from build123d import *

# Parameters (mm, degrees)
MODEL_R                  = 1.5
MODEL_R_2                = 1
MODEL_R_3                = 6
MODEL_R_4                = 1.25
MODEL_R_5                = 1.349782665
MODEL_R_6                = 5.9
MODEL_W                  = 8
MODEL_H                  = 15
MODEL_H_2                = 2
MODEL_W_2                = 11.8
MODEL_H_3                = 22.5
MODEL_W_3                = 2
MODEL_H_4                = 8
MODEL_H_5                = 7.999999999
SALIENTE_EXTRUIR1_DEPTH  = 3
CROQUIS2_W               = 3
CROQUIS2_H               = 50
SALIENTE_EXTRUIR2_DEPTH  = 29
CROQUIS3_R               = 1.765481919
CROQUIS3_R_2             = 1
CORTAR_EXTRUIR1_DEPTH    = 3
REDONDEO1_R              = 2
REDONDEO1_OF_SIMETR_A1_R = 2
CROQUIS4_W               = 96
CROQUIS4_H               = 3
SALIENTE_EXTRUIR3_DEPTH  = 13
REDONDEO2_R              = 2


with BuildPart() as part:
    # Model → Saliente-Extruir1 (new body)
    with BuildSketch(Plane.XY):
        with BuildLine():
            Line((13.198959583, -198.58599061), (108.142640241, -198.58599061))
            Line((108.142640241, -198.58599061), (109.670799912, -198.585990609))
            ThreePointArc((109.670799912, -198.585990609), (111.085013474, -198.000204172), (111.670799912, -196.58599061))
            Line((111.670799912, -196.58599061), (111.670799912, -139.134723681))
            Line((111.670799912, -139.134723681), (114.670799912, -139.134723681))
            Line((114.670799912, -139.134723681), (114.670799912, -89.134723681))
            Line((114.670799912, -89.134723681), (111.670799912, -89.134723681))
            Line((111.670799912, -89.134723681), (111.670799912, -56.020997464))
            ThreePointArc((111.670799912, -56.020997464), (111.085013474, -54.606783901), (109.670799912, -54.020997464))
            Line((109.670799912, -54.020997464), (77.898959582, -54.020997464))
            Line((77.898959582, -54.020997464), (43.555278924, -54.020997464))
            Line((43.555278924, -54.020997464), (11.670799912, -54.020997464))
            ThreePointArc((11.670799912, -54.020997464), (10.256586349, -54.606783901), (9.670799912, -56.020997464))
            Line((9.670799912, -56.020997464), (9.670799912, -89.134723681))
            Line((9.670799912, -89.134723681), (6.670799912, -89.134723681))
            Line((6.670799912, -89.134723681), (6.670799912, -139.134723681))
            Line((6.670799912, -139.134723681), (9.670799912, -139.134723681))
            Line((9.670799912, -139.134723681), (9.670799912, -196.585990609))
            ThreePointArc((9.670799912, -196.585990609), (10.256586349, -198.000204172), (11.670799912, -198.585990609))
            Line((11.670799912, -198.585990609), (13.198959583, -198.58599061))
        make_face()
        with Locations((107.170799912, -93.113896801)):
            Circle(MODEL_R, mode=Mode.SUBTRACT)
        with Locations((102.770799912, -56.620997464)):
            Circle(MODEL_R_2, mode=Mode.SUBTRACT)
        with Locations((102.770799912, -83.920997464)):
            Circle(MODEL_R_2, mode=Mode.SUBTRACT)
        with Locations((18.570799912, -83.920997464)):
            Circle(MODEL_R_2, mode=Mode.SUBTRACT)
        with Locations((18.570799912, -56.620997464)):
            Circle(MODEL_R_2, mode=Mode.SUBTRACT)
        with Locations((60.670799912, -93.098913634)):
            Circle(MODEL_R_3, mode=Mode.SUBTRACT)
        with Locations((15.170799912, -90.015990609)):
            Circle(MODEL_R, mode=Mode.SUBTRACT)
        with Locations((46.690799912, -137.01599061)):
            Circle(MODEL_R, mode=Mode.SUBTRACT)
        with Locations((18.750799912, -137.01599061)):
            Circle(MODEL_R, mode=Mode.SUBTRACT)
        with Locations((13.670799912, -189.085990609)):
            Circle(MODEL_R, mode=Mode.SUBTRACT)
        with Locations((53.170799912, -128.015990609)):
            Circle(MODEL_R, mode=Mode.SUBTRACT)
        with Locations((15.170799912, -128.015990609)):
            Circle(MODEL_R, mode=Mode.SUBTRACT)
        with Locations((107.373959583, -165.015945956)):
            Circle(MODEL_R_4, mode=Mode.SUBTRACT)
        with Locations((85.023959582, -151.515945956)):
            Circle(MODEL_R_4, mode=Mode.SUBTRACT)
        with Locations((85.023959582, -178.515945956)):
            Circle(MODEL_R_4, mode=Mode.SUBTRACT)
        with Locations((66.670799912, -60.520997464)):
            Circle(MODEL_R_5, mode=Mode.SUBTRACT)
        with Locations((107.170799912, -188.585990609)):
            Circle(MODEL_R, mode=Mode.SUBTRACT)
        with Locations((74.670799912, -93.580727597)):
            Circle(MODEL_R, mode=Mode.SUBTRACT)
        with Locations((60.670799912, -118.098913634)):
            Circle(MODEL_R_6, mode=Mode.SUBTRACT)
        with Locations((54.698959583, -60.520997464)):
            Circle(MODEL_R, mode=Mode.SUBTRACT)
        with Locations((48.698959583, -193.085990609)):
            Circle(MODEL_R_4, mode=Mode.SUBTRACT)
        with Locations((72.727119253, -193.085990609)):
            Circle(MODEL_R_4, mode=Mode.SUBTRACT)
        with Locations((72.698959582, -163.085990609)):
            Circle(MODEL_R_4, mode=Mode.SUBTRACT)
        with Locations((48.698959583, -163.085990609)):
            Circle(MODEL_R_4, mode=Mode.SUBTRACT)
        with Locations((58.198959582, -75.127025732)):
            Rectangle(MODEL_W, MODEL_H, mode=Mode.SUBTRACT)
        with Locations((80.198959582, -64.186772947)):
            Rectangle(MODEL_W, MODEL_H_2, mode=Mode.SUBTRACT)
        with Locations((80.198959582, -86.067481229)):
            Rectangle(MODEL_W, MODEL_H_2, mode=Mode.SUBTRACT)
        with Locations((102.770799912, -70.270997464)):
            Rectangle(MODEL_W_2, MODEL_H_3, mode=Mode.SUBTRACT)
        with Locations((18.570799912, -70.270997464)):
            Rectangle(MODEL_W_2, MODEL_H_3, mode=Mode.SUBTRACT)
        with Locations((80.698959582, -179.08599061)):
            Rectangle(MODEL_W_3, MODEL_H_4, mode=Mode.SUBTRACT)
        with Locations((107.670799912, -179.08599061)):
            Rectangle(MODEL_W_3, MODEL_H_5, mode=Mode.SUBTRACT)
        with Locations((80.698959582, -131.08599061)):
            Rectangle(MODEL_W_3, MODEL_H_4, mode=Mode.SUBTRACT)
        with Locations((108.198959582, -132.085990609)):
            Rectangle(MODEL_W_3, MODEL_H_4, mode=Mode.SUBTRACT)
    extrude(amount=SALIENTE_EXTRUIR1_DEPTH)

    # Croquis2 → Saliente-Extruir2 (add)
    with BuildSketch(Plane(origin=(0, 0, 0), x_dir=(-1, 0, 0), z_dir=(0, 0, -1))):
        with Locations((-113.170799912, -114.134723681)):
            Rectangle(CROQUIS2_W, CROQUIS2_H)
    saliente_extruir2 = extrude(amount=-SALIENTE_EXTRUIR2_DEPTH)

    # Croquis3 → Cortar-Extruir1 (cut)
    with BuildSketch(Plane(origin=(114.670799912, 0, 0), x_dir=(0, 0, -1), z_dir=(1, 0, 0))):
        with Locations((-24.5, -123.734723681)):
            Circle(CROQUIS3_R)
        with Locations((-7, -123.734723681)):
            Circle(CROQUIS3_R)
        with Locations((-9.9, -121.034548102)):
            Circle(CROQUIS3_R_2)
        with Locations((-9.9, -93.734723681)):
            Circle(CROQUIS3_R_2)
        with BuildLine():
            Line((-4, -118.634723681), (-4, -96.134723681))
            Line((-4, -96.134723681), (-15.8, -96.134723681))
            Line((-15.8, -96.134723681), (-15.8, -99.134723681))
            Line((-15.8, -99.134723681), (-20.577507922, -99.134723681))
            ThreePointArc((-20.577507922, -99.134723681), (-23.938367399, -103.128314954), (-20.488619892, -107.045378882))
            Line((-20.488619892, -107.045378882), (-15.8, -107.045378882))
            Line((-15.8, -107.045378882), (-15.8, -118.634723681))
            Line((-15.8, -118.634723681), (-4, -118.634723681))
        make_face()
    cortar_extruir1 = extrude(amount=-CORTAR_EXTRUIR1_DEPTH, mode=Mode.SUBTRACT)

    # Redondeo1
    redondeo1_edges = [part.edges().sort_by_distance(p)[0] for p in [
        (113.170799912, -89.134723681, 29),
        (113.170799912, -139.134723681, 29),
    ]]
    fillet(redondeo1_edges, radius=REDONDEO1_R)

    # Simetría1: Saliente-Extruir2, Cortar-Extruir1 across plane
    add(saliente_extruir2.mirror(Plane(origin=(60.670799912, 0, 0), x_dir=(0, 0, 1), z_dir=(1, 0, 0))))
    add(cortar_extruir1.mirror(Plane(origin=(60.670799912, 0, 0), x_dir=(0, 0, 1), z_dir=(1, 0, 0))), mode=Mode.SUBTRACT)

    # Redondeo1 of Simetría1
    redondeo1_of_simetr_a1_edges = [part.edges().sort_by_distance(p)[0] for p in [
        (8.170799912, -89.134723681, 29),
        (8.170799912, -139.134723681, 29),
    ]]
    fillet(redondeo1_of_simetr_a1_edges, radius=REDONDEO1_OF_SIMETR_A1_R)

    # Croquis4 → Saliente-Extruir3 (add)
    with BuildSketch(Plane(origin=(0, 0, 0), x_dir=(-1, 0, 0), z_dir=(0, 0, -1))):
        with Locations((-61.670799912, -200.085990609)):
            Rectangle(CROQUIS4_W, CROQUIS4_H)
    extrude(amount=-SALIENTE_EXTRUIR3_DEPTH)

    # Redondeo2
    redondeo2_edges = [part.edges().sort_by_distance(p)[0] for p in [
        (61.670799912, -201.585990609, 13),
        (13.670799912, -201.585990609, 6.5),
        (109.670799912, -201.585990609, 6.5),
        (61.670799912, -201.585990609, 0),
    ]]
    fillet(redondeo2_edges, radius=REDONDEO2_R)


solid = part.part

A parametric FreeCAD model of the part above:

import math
import FreeCAD as App
import Part
import Sketcher
from FreeCAD import Vector
Q = App.Units.Quantity


def edges_at(feature, points):
    """Names of the edges that pass closest to the given points."""
    edges = feature.Shape.Edges
    near = lambda p: min(range(len(edges)), key=lambda i: edges[i].distToShape(Part.Vertex(*p))[0])
    return sorted({f"Edge{near(p) + 1}" for p in points})

doc = App.newDocument("Part")
body = doc.addObject("PartDesign::Body", "Body")

sketch1 = body.newObject("Sketcher::SketchObject", "Sketch")
sketch1.AttachmentSupport = (doc.getObject("XY_Plane"), [""])
sketch1.MapMode = "FlatFace"
sketch1.addGeometry(Part.LineSegment(Vector(13.2, -198.6, 0), Vector(108.1, -198.6, 0)), False)
sketch1.addGeometry(Part.LineSegment(Vector(108.1, -198.6, 0), Vector(109.7, -198.6, 0)), False)
sketch1.addGeometry(Part.ArcOfCircle(Part.Circle(Vector(109.7, -196.6, 0), Vector(0, 0, 1), 2), math.radians(-90), math.radians(0)), False)
sketch1.addGeometry(Part.LineSegment(Vector(111.7, -196.6, 0), Vector(111.7, -139.1, 0)), False)
sketch1.addGeometry(Part.LineSegment(Vector(111.7, -139.1, 0), Vector(114.7, -139.1, 0)), False)
sketch1.addGeometry(Part.LineSegment(Vector(114.7, -139.1, 0), Vector(114.7, -89.1, 0)), False)
sketch1.addGeometry(Part.LineSegment(Vector(114.7, -89.1, 0), Vector(111.7, -89.1, 0)), False)
sketch1.addGeometry(Part.LineSegment(Vector(111.7, -89.1, 0), Vector(111.7, -56, 0)), False)
sketch1.addGeometry(Part.ArcOfCircle(Part.Circle(Vector(109.7, -56, 0), Vector(0, 0, 1), 2), math.radians(0), math.radians(90)), False)
sketch1.addGeometry(Part.LineSegment(Vector(109.7, -54, 0), Vector(11.7, -54, 0)), False)
sketch1.addGeometry(Part.ArcOfCircle(Part.Circle(Vector(11.7, -56, 0), Vector(0, 0, 1), 2), math.radians(90), math.radians(180)), False)
sketch1.addGeometry(Part.LineSegment(Vector(9.7, -56, 0), Vector(9.7, -89.1, 0)), False)
sketch1.addGeometry(Part.LineSegment(Vector(9.7, -89.1, 0), Vector(6.7, -89.1, 0)), False)
sketch1.addGeometry(Part.LineSegment(Vector(6.7, -89.1, 0), Vector(6.7, -139.1, 0)), False)
sketch1.addGeometry(Part.LineSegment(Vector(6.7, -139.1, 0), Vector(9.7, -139.1, 0)), False)
sketch1.addGeometry(Part.LineSegment(Vector(9.7, -139.1, 0), Vector(9.7, -196.6, 0)), False)
sketch1.addGeometry(Part.ArcOfCircle(Part.Circle(Vector(11.7, -196.6, 0), Vector(0, 0, 1), 2), math.radians(180), math.radians(270)), False)
sketch1.addGeometry(Part.LineSegment(Vector(11.7, -198.6, 0), Vector(13.2, -198.6, 0)), False)
sketch1.addGeometry(Part.Circle(Vector(13.7, -189.1, 0), Vector(0, 0, 1), 1.5), False)
sketch1.addGeometry(Part.Circle(Vector(48.7, -193.1, 0), Vector(0, 0, 1), 1.2), False)
sketch1.addGeometry(Part.Circle(Vector(48.7, -163.1, 0), Vector(0, 0, 1), 1.2), False)
sketch1.addGeometry(Part.Circle(Vector(18.8, -137, 0), Vector(0, 0, 1), 1.5), False)
sketch1.addGeometry(Part.Circle(Vector(15.2, -128, 0), Vector(0, 0, 1), 1.5), False)
sketch1.addGeometry(Part.Circle(Vector(46.7, -137, 0), Vector(0, 0, 1), 1.5), False)
sketch1.addGeometry(Part.Circle(Vector(53.2, -128, 0), Vector(0, 0, 1), 1.5), False)
sketch1.addGeometry(Part.Circle(Vector(72.7, -193.1, 0), Vector(0, 0, 1), 1.2), False)
sketch1.addGeometry(Part.LineSegment(Vector(81.7, -183.1, 0), Vector(79.7, -183.1, 0)), False)
sketch1.addGeometry(Part.LineSegment(Vector(79.7, -183.1, 0), Vector(79.7, -175.1, 0)), False)
sketch1.addGeometry(Part.LineSegment(Vector(79.7, -175.1, 0), Vector(81.7, -175.1, 0)), False)
sketch1.addGeometry(Part.LineSegment(Vector(81.7, -175.1, 0), Vector(81.7, -183.1, 0)), False)
sketch1.addGeometry(Part.Circle(Vector(72.7, -163.1, 0), Vector(0, 0, 1), 1.2), False)
sketch1.addGeometry(Part.Circle(Vector(85, -178.5, 0), Vector(0, 0, 1), 1.2), False)
sketch1.addGeometry(Part.Circle(Vector(107.2, -188.6, 0), Vector(0, 0, 1), 1.5), False)
sketch1.addGeometry(Part.LineSegment(Vector(108.7, -183.1, 0), Vector(106.7, -183.1, 0)), False)
sketch1.addGeometry(Part.LineSegment(Vector(106.7, -183.1, 0), Vector(106.7, -175.1, 0)), False)
sketch1.addGeometry(Part.LineSegment(Vector(106.7, -175.1, 0), Vector(108.7, -175.1, 0)), False)
sketch1.addGeometry(Part.LineSegment(Vector(108.7, -175.1, 0), Vector(108.7, -183.1, 0)), False)
sketch1.addGeometry(Part.Circle(Vector(107.4, -165, 0), Vector(0, 0, 1), 1.2), False)
sketch1.addGeometry(Part.LineSegment(Vector(81.7, -135.1, 0), Vector(79.7, -135.1, 0)), False)
sketch1.addGeometry(Part.LineSegment(Vector(79.7, -135.1, 0), Vector(79.7, -127.1, 0)), False)
sketch1.addGeometry(Part.LineSegment(Vector(79.7, -127.1, 0), Vector(81.7, -127.1, 0)), False)
sketch1.addGeometry(Part.LineSegment(Vector(81.7, -127.1, 0), Vector(81.7, -135.1, 0)), False)
sketch1.addGeometry(Part.Circle(Vector(85, -151.5, 0), Vector(0, 0, 1), 1.2), False)
sketch1.addGeometry(Part.LineSegment(Vector(109.2, -136.1, 0), Vector(107.2, -136.1, 0)), False)
sketch1.addGeometry(Part.LineSegment(Vector(107.2, -136.1, 0), Vector(107.2, -128.1, 0)), False)
sketch1.addGeometry(Part.LineSegment(Vector(107.2, -128.1, 0), Vector(109.2, -128.1, 0)), False)
sketch1.addGeometry(Part.LineSegment(Vector(109.2, -128.1, 0), Vector(109.2, -136.1, 0)), False)
sketch1.addGeometry(Part.Circle(Vector(60.7, -118.1, 0), Vector(0, 0, 1), 5.9), False)
sketch1.addGeometry(Part.Circle(Vector(60.7, -93.1, 0), Vector(0, 0, 1), 6), False)
sketch1.addGeometry(Part.Circle(Vector(15.2, -90, 0), Vector(0, 0, 1), 1.5), False)
sketch1.addGeometry(Part.Circle(Vector(18.6, -83.9, 0), Vector(0, 0, 1), 1), False)
sketch1.addGeometry(Part.LineSegment(Vector(24.5, -81.5, 0), Vector(12.7, -81.5, 0)), False)
sketch1.addGeometry(Part.LineSegment(Vector(12.7, -81.5, 0), Vector(12.7, -59, 0)), False)
sketch1.addGeometry(Part.LineSegment(Vector(12.7, -59, 0), Vector(24.5, -59, 0)), False)
sketch1.addGeometry(Part.LineSegment(Vector(24.5, -59, 0), Vector(24.5, -81.5, 0)), False)
sketch1.addGeometry(Part.Circle(Vector(18.6, -56.6, 0), Vector(0, 0, 1), 1), False)
sketch1.addGeometry(Part.LineSegment(Vector(62.2, -82.6, 0), Vector(54.2, -82.6, 0)), False)
sketch1.addGeometry(Part.LineSegment(Vector(54.2, -82.6, 0), Vector(54.2, -67.6, 0)), False)
sketch1.addGeometry(Part.LineSegment(Vector(54.2, -67.6, 0), Vector(62.2, -67.6, 0)), False)
sketch1.addGeometry(Part.LineSegment(Vector(62.2, -67.6, 0), Vector(62.2, -82.6, 0)), False)
sketch1.addGeometry(Part.Circle(Vector(54.7, -60.5, 0), Vector(0, 0, 1), 1.5), False)
sketch1.addGeometry(Part.Circle(Vector(74.7, -93.6, 0), Vector(0, 0, 1), 1.5), False)
sketch1.addGeometry(Part.Circle(Vector(107.2, -93.1, 0), Vector(0, 0, 1), 1.5), False)
sketch1.addGeometry(Part.LineSegment(Vector(84.2, -87.1, 0), Vector(76.2, -87.1, 0)), False)
sketch1.addGeometry(Part.LineSegment(Vector(76.2, -87.1, 0), Vector(76.2, -85.1, 0)), False)
sketch1.addGeometry(Part.LineSegment(Vector(76.2, -85.1, 0), Vector(84.2, -85.1, 0)), False)
sketch1.addGeometry(Part.LineSegment(Vector(84.2, -85.1, 0), Vector(84.2, -87.1, 0)), False)
sketch1.addGeometry(Part.Circle(Vector(66.7, -60.5, 0), Vector(0, 0, 1), 1.3), False)
sketch1.addGeometry(Part.LineSegment(Vector(84.2, -65.2, 0), Vector(76.2, -65.2, 0)), False)
sketch1.addGeometry(Part.LineSegment(Vector(76.2, -65.2, 0), Vector(76.2, -63.2, 0)), False)
sketch1.addGeometry(Part.LineSegment(Vector(76.2, -63.2, 0), Vector(84.2, -63.2, 0)), False)
sketch1.addGeometry(Part.LineSegment(Vector(84.2, -63.2, 0), Vector(84.2, -65.2, 0)), False)
sketch1.addGeometry(Part.Circle(Vector(102.8, -83.9, 0), Vector(0, 0, 1), 1), False)
sketch1.addGeometry(Part.LineSegment(Vector(108.7, -81.5, 0), Vector(96.9, -81.5, 0)), False)
sketch1.addGeometry(Part.LineSegment(Vector(96.9, -81.5, 0), Vector(96.9, -59, 0)), False)
sketch1.addGeometry(Part.LineSegment(Vector(96.9, -59, 0), Vector(108.7, -59, 0)), False)
sketch1.addGeometry(Part.LineSegment(Vector(108.7, -59, 0), Vector(108.7, -81.5, 0)), False)
sketch1.addGeometry(Part.Circle(Vector(102.8, -56.6, 0), Vector(0, 0, 1), 1), False)
sketch1.addConstraint(Sketcher.Constraint("Coincident", 0, 2, 1, 1))
sketch1.addConstraint(Sketcher.Constraint("Tangent", 1, 2, 2, 1))
sketch1.addConstraint(Sketcher.Constraint("Tangent", 2, 2, 3, 1))
sketch1.addConstraint(Sketcher.Constraint("Coincident", 3, 2, 4, 1))
sketch1.addConstraint(Sketcher.Constraint("Coincident", 4, 2, 5, 1))
sketch1.addConstraint(Sketcher.Constraint("Coincident", 5, 2, 6, 1))
sketch1.addConstraint(Sketcher.Constraint("Coincident", 6, 2, 7, 1))
sketch1.addConstraint(Sketcher.Constraint("Tangent", 7, 2, 8, 1))
sketch1.addConstraint(Sketcher.Constraint("Tangent", 8, 2, 9, 1))
sketch1.addConstraint(Sketcher.Constraint("Tangent", 9, 2, 10, 1))
sketch1.addConstraint(Sketcher.Constraint("Tangent", 10, 2, 11, 1))
sketch1.addConstraint(Sketcher.Constraint("Coincident", 11, 2, 12, 1))
sketch1.addConstraint(Sketcher.Constraint("Coincident", 12, 2, 13, 1))
sketch1.addConstraint(Sketcher.Constraint("Coincident", 13, 2, 14, 1))
sketch1.addConstraint(Sketcher.Constraint("Coincident", 14, 2, 15, 1))
sketch1.addConstraint(Sketcher.Constraint("Tangent", 15, 2, 16, 1))
sketch1.addConstraint(Sketcher.Constraint("Tangent", 16, 2, 17, 1))
sketch1.addConstraint(Sketcher.Constraint("Coincident", 17, 2, 0, 1))
sketch1.addConstraint(Sketcher.Constraint("Coincident", 26, 2, 27, 1))
sketch1.addConstraint(Sketcher.Constraint("Coincident", 27, 2, 28, 1))
sketch1.addConstraint(Sketcher.Constraint("Coincident", 28, 2, 29, 1))
sketch1.addConstraint(Sketcher.Constraint("Coincident", 29, 2, 26, 1))
sketch1.addConstraint(Sketcher.Constraint("Coincident", 33, 2, 34, 1))
sketch1.addConstraint(Sketcher.Constraint("Coincident", 34, 2, 35, 1))
sketch1.addConstraint(Sketcher.Constraint("Coincident", 35, 2, 36, 1))
sketch1.addConstraint(Sketcher.Constraint("Coincident", 36, 2, 33, 1))
sketch1.addConstraint(Sketcher.Constraint("Coincident", 38, 2, 39, 1))
sketch1.addConstraint(Sketcher.Constraint("Coincident", 39, 2, 40, 1))
sketch1.addConstraint(Sketcher.Constraint("Coincident", 40, 2, 41, 1))
sketch1.addConstraint(Sketcher.Constraint("Coincident", 41, 2, 38, 1))
sketch1.addConstraint(Sketcher.Constraint("Coincident", 43, 2, 44, 1))
sketch1.addConstraint(Sketcher.Constraint("Coincident", 44, 2, 45, 1))
sketch1.addConstraint(Sketcher.Constraint("Coincident", 45, 2, 46, 1))
sketch1.addConstraint(Sketcher.Constraint("Coincident", 46, 2, 43, 1))
sketch1.addConstraint(Sketcher.Constraint("Coincident", 51, 2, 52, 1))
sketch1.addConstraint(Sketcher.Constraint("Coincident", 52, 2, 53, 1))
sketch1.addConstraint(Sketcher.Constraint("Coincident", 53, 2, 54, 1))
sketch1.addConstraint(Sketcher.Constraint("Coincident", 54, 2, 51, 1))
sketch1.addConstraint(Sketcher.Constraint("Coincident", 56, 2, 57, 1))
sketch1.addConstraint(Sketcher.Constraint("Coincident", 57, 2, 58, 1))
sketch1.addConstraint(Sketcher.Constraint("Coincident", 58, 2, 59, 1))
sketch1.addConstraint(Sketcher.Constraint("Coincident", 59, 2, 56, 1))
sketch1.addConstraint(Sketcher.Constraint("Coincident", 63, 2, 64, 1))
sketch1.addConstraint(Sketcher.Constraint("Coincident", 64, 2, 65, 1))
sketch1.addConstraint(Sketcher.Constraint("Coincident", 65, 2, 66, 1))
sketch1.addConstraint(Sketcher.Constraint("Coincident", 66, 2, 63, 1))
sketch1.addConstraint(Sketcher.Constraint("Coincident", 68, 2, 69, 1))
sketch1.addConstraint(Sketcher.Constraint("Coincident", 69, 2, 70, 1))
sketch1.addConstraint(Sketcher.Constraint("Coincident", 70, 2, 71, 1))
sketch1.addConstraint(Sketcher.Constraint("Coincident", 71, 2, 68, 1))
sketch1.addConstraint(Sketcher.Constraint("Coincident", 73, 2, 74, 1))
sketch1.addConstraint(Sketcher.Constraint("Coincident", 74, 2, 75, 1))
sketch1.addConstraint(Sketcher.Constraint("Coincident", 75, 2, 76, 1))
sketch1.addConstraint(Sketcher.Constraint("Coincident", 76, 2, 73, 1))
sketch1.addConstraint(Sketcher.Constraint("Horizontal", 0))
sketch1.addConstraint(Sketcher.Constraint("Horizontal", 1))
sketch1.addConstraint(Sketcher.Constraint("Vertical", 3))
sketch1.addConstraint(Sketcher.Constraint("Horizontal", 4))
sketch1.addConstraint(Sketcher.Constraint("Vertical", 5))
sketch1.addConstraint(Sketcher.Constraint("Horizontal", 6))
sketch1.addConstraint(Sketcher.Constraint("Vertical", 7))
sketch1.addConstraint(Sketcher.Constraint("Horizontal", 9))
sketch1.addConstraint(Sketcher.Constraint("Vertical", 11))
sketch1.addConstraint(Sketcher.Constraint("Horizontal", 12))
sketch1.addConstraint(Sketcher.Constraint("Vertical", 13))
sketch1.addConstraint(Sketcher.Constraint("Horizontal", 14))
sketch1.addConstraint(Sketcher.Constraint("Vertical", 15))
sketch1.addConstraint(Sketcher.Constraint("Horizontal", 17))
sketch1.addConstraint(Sketcher.Constraint("Horizontal", 26))
sketch1.addConstraint(Sketcher.Constraint("Vertical", 27))
sketch1.addConstraint(Sketcher.Constraint("Horizontal", 28))
sketch1.addConstraint(Sketcher.Constraint("Vertical", 29))
sketch1.addConstraint(Sketcher.Constraint("Horizontal", 33))
sketch1.addConstraint(Sketcher.Constraint("Vertical", 34))
sketch1.addConstraint(Sketcher.Constraint("Horizontal", 35))
sketch1.addConstraint(Sketcher.Constraint("Vertical", 36))
sketch1.addConstraint(Sketcher.Constraint("Horizontal", 38))
sketch1.addConstraint(Sketcher.Constraint("Vertical", 39))
sketch1.addConstraint(Sketcher.Constraint("Horizontal", 40))
sketch1.addConstraint(Sketcher.Constraint("Vertical", 41))
sketch1.addConstraint(Sketcher.Constraint("Horizontal", 43))
sketch1.addConstraint(Sketcher.Constraint("Vertical", 44))
sketch1.addConstraint(Sketcher.Constraint("Horizontal", 45))
sketch1.addConstraint(Sketcher.Constraint("Vertical", 46))
sketch1.addConstraint(Sketcher.Constraint("Horizontal", 51))
sketch1.addConstraint(Sketcher.Constraint("Vertical", 52))
sketch1.addConstraint(Sketcher.Constraint("Horizontal", 53))
sketch1.addConstraint(Sketcher.Constraint("Vertical", 54))
sketch1.addConstraint(Sketcher.Constraint("Horizontal", 56))
sketch1.addConstraint(Sketcher.Constraint("Vertical", 57))
sketch1.addConstraint(Sketcher.Constraint("Horizontal", 58))
sketch1.addConstraint(Sketcher.Constraint("Vertical", 59))
sketch1.addConstraint(Sketcher.Constraint("Horizontal", 63))
sketch1.addConstraint(Sketcher.Constraint("Vertical", 64))
sketch1.addConstraint(Sketcher.Constraint("Horizontal", 65))
sketch1.addConstraint(Sketcher.Constraint("Vertical", 66))
sketch1.addConstraint(Sketcher.Constraint("Horizontal", 68))
sketch1.addConstraint(Sketcher.Constraint("Vertical", 69))
sketch1.addConstraint(Sketcher.Constraint("Horizontal", 70))
sketch1.addConstraint(Sketcher.Constraint("Vertical", 71))
sketch1.addConstraint(Sketcher.Constraint("Horizontal", 73))
sketch1.addConstraint(Sketcher.Constraint("Vertical", 74))
sketch1.addConstraint(Sketcher.Constraint("Horizontal", 75))
sketch1.addConstraint(Sketcher.Constraint("Vertical", 76))
sketch1.addConstraint(Sketcher.Constraint("Equal", 2, 8))
sketch1.addConstraint(Sketcher.Constraint("Equal", 8, 10))
sketch1.addConstraint(Sketcher.Constraint("Equal", 10, 16))
sketch1.addConstraint(Sketcher.Constraint("Equal", 19, 20))
sketch1.addConstraint(Sketcher.Constraint("Equal", 18, 21))
sketch1.addConstraint(Sketcher.Constraint("Equal", 21, 22))
sketch1.addConstraint(Sketcher.Constraint("Equal", 22, 23))
sketch1.addConstraint(Sketcher.Constraint("Equal", 23, 24))
sketch1.addConstraint(Sketcher.Constraint("Equal", 20, 25))
sketch1.addConstraint(Sketcher.Constraint("Equal", 25, 30))
sketch1.addConstraint(Sketcher.Constraint("Equal", 30, 31))
sketch1.addConstraint(Sketcher.Constraint("Equal", 24, 32))
sketch1.addConstraint(Sketcher.Constraint("Equal", 31, 37))
sketch1.addConstraint(Sketcher.Constraint("Equal", 37, 42))
sketch1.addConstraint(Sketcher.Constraint("Equal", 32, 49))
sketch1.addConstraint(Sketcher.Constraint("Equal", 50, 55))
sketch1.addConstraint(Sketcher.Constraint("Equal", 49, 60))
sketch1.addConstraint(Sketcher.Constraint("Equal", 60, 61))
sketch1.addConstraint(Sketcher.Constraint("Equal", 61, 62))
sketch1.addConstraint(Sketcher.Constraint("Equal", 55, 72))
sketch1.addConstraint(Sketcher.Constraint("Equal", 72, 77))
sketch1.addConstraint(Sketcher.Constraint("Horizontal", 21, 3, 23, 3))
sketch1.addConstraint(Sketcher.Constraint("Horizontal", 22, 3, 24, 3))
sketch1.addConstraint(Sketcher.Constraint("Horizontal", 19, 3, 25, 3))
sketch1.addConstraint(Sketcher.Constraint("Horizontal", 20, 3, 30, 3))
sketch1.addConstraint(Sketcher.Constraint("Horizontal", 60, 3, 67, 3))
sketch1.addConstraint(Sketcher.Constraint("Horizontal", 50, 3, 72, 3))
sketch1.addConstraint(Sketcher.Constraint("Horizontal", 55, 3, 77, 3))
sketch1.addConstraint(Sketcher.Constraint("Horizontal", 6, 2, 11, 2))
sketch1.addConstraint(Sketcher.Constraint("Horizontal", 4, 2, 13, 2))
sketch1.addConstraint(Sketcher.Constraint("Horizontal", 29, 2, 33, 2))
sketch1.addConstraint(Sketcher.Constraint("Horizontal", 28, 2, 34, 2))
sketch1.addConstraint(Sketcher.Constraint("Horizontal", 54, 2, 73, 2))
sketch1.addConstraint(Sketcher.Constraint("Horizontal", 53, 2, 74, 2))
sketch1.addConstraint(Sketcher.Constraint("Vertical", 2, 3, 8, 3))
sketch1.addConstraint(Sketcher.Constraint("Vertical", 10, 3, 16, 3))
sketch1.addConstraint(Sketcher.Constraint("Vertical", 19, 3, 20, 3))
sketch1.addConstraint(Sketcher.Constraint("Vertical", 31, 3, 42, 3))
sketch1.addConstraint(Sketcher.Constraint("Vertical", 47, 3, 48, 3))
sketch1.addConstraint(Sketcher.Constraint("Vertical", 22, 3, 49, 3))
sketch1.addConstraint(Sketcher.Constraint("Vertical", 50, 3, 55, 3))
sketch1.addConstraint(Sketcher.Constraint("Vertical", 32, 3, 62, 3))
sketch1.addConstraint(Sketcher.Constraint("Vertical", 72, 3, 77, 3))
sketch1.addConstraint(Sketcher.Constraint("Vertical", 27, 2, 38, 2))
sketch1.addConstraint(Sketcher.Constraint("Vertical", 29, 2, 40, 2))
sketch1.addConstraint(Sketcher.Constraint("Vertical", 64, 2, 68, 2))
sketch1.addConstraint(Sketcher.Constraint("Vertical", 66, 2, 70, 2))
sketch1.addConstraint(Sketcher.Constraint("Vertical", 36, 2, 75, 2))
sketch1.addConstraint(Sketcher.Constraint("Equal", 6, 12))
sketch1.addConstraint(Sketcher.Constraint("Equal", 1, 17))
sketch1.addConstraint(Sketcher.Constraint("Equal", 28, 33))
sketch1.addConstraint(Sketcher.Constraint("Equal", 40, 43))
sketch1.addConstraint(Sketcher.Constraint("Equal", 58, 63))
sketch1.addConstraint(Sketcher.Constraint("Equal", 53, 73))
sketch1.addConstraint(Sketcher.Constraint("Equal", 70, 27))
sketch1.addConstraint(Sketcher.Constraint("Equal", 36, 39))
sketch1.addConstraint(Sketcher.Constraint("Equal", 41, 44))
sketch1.addConstraint(Sketcher.Constraint("Equal", 45, 64))
sketch1.addConstraint(Sketcher.Constraint("Equal", 66, 69))
sketch1.addConstraint(Sketcher.Constraint("Diameter", 18, Q("3 mm")))
sketch1.addConstraint(Sketcher.Constraint("Diameter", 48, Q("12 mm")))
sketch1.addConstraint(Sketcher.Constraint("Diameter", 50, Q("2 mm")))
sketch1.addConstraint(Sketcher.Constraint("Radius", 2, Q("2 mm")))
sketch1.addConstraint(Sketcher.Constraint("Diameter", 19, Q("2.5 mm")))
sketch1.addConstraint(Sketcher.Constraint("Diameter", 47, Q("11.8 mm")))
sketch1.addConstraint(Sketcher.Constraint("DistanceX", 4, 1, 4, 2, Q("3 mm")))
sketch1.addConstraint(Sketcher.Constraint("DistanceX", 9, 2, 9, 1, Q("98 mm")))
sketch1.addConstraint(Sketcher.Constraint("DistanceX", 26, 2, 26, 1, Q("2 mm")))
sketch1.addConstraint(Sketcher.Constraint("DistanceX", 56, 2, 56, 1, Q("8 mm")))
sketch1.addConstraint(Sketcher.Constraint("DistanceY", 5, 1, 5, 2, Q("50 mm")))
sketch1.addConstraint(Sketcher.Constraint("DistanceY", 57, 1, 57, 2, Q("15 mm")))
sketch1.addConstraint(Sketcher.Constraint("DistanceX", 51, 2, 51, 1, Q("11.8 mm")))
sketch1.addConstraint(Sketcher.Constraint("DistanceY", 52, 1, 52, 2, Q("22.5 mm")))
sketch1.addConstraint(Sketcher.Constraint("Diameter", 67, Q("2.699565 mm")))
sketch1.addConstraint(Sketcher.Constraint("DistanceX", 0, 1, 0, 2, Q("94.943681 mm")))
sketch1.addConstraint(Sketcher.Constraint("DistanceX", -1, 1, 2, 3, Q("109.6708 mm")))
sketch1.addConstraint(Sketcher.Constraint("DistanceX", -1, 1, 18, 3, Q("13.6708 mm")))
sketch1.addConstraint(Sketcher.Constraint("DistanceX", -1, 1, 21, 3, Q("18.7508 mm")))
sketch1.addConstraint(Sketcher.Constraint("DistanceX", -1, 1, 22, 3, Q("15.1708 mm")))
sketch1.addConstraint(Sketcher.Constraint("DistanceX", -1, 1, 23, 3, Q("46.6908 mm")))
sketch1.addConstraint(Sketcher.Constraint("DistanceX", -1, 1, 24, 3, Q("53.1708 mm")))
sketch1.addConstraint(Sketcher.Constraint("DistanceX", -1, 1, 32, 3, Q("107.1708 mm")))
sketch1.addConstraint(Sketcher.Constraint("DistanceX", -1, 1, 47, 3, Q("60.6708 mm")))
sketch1.addConstraint(Sketcher.Constraint("DistanceX", -1, 1, 50, 3, Q("18.5708 mm")))
sketch1.addConstraint(Sketcher.Constraint("DistanceX", -1, 1, 61, 3, Q("74.6708 mm")))
sketch1.addConstraint(Sketcher.Constraint("DistanceX", -1, 1, 67, 3, Q("66.6708 mm")))
sketch1.addConstraint(Sketcher.Constraint("DistanceX", -1, 1, 72, 3, Q("102.7708 mm")))
sketch1.addConstraint(Sketcher.Constraint("DistanceX", -1, 1, 33, 2, Q("106.6708 mm")))
sketch1.addConstraint(Sketcher.Constraint("DistanceX", -1, 1, 51, 2, Q("12.6708 mm")))
sketch1.addConstraint(Sketcher.Constraint("DistanceY", 3, 1, 3, 2, Q("57.451267 mm")))
sketch1.addConstraint(Sketcher.Constraint("DistanceY", 7, 1, 7, 2, Q("33.113726 mm")))
sketch1.addConstraint(Sketcher.Constraint("DistanceY", 2, 3, -1, 1, Q("196.585991 mm")))
sketch1.addConstraint(Sketcher.Constraint("DistanceY", 18, 3, -1, 1, Q("189.085991 mm")))
sketch1.addConstraint(Sketcher.Constraint("DistanceX", -1, 1, 19, 3, Q("48.69896 mm")))
sketch1.addConstraint(Sketcher.Constraint("DistanceY", 19, 3, -1, 1, Q("193.085991 mm")))
sketch1.addConstraint(Sketcher.Constraint("DistanceY", 20, 3, -1, 1, Q("163.085991 mm")))
sketch1.addConstraint(Sketcher.Constraint("DistanceY", 21, 3, -1, 1, Q("137.015991 mm")))
sketch1.addConstraint(Sketcher.Constraint("DistanceY", 22, 3, -1, 1, Q("128.015991 mm")))
sketch1.addConstraint(Sketcher.Constraint("DistanceX", -1, 1, 25, 3, Q("72.727119 mm")))
sketch1.addConstraint(Sketcher.Constraint("DistanceX", -1, 1, 30, 3, Q("72.69896 mm")))
sketch1.addConstraint(Sketcher.Constraint("DistanceX", -1, 1, 31, 3, Q("85.02396 mm")))
sketch1.addConstraint(Sketcher.Constraint("DistanceY", 32, 3, -1, 1, Q("188.585991 mm")))
sketch1.addConstraint(Sketcher.Constraint("DistanceX", -1, 1, 37, 3, Q("107.37396 mm")))
sketch1.addConstraint(Sketcher.Constraint("DistanceY", 49, 3, -1, 1, Q("90.015991 mm")))
sketch1.addConstraint(Sketcher.Constraint("DistanceX", -1, 1, 60, 3, Q("54.69896 mm")))
sketch1.addConstraint(Sketcher.Constraint("DistanceX", -1, 1, 26, 2, Q("79.69896 mm")))
sketch1.addConstraint(Sketcher.Constraint("DistanceY", 26, 2, -1, 1, Q("183.085991 mm")))
sketch1.addConstraint(Sketcher.Constraint("DistanceY", 38, 2, -1, 1, Q("135.085991 mm")))
sketch1.addConstraint(Sketcher.Constraint("DistanceX", -1, 1, 43, 2, Q("107.19896 mm")))
sketch1.addConstraint(Sketcher.Constraint("DistanceY", 43, 2, -1, 1, Q("136.085991 mm")))
sketch1.addConstraint(Sketcher.Constraint("DistanceX", -1, 1, 56, 2, Q("54.19896 mm")))
sketch1.addConstraint(Sketcher.Constraint("DistanceX", -1, 1, 63, 2, Q("76.19896 mm")))
sketch1.addConstraint(Sketcher.Constraint("DistanceY", 63, 2, -1, 1, Q("87.067481 mm")))
sketch1.addConstraint(Sketcher.Constraint("DistanceY", 31, 3, -1, 1, Q("178.515946 mm")))
sketch1.addConstraint(Sketcher.Constraint("DistanceY", 37, 3, -1, 1, Q("165.015946 mm")))
sketch1.addConstraint(Sketcher.Constraint("DistanceY", 42, 3, -1, 1, Q("151.515946 mm")))
sketch1.addConstraint(Sketcher.Constraint("DistanceY", 47, 3, -1, 1, Q("118.098914 mm")))
sketch1.addConstraint(Sketcher.Constraint("DistanceY", 48, 3, -1, 1, Q("93.098914 mm")))
sketch1.addConstraint(Sketcher.Constraint("DistanceY", 50, 3, -1, 1, Q("83.920997 mm")))
sketch1.addConstraint(Sketcher.Constraint("DistanceY", 55, 3, -1, 1, Q("56.620997 mm")))
sketch1.addConstraint(Sketcher.Constraint("DistanceY", 60, 3, -1, 1, Q("60.520997 mm")))
sketch1.addConstraint(Sketcher.Constraint("DistanceY", 61, 3, -1, 1, Q("93.580728 mm")))
sketch1.addConstraint(Sketcher.Constraint("DistanceY", 62, 3, -1, 1, Q("93.113897 mm")))
sketch1.addConstraint(Sketcher.Constraint("DistanceY", 51, 2, -1, 1, Q("81.520997 mm")))
sketch1.addConstraint(Sketcher.Constraint("DistanceY", 56, 2, -1, 1, Q("82.627026 mm")))
sketch1.addConstraint(Sketcher.Constraint("DistanceY", 68, 2, -1, 1, Q("65.186773 mm")))
pad1 = body.newObject("PartDesign::Pad", "Pad")
pad1.Profile = sketch1
pad1.Length = 3

sketch2 = body.newObject("Sketcher::SketchObject", "Sketch001")
sketch2.AttachmentSupport = (doc.getObject("XY_Plane"), [""])
sketch2.MapMode = "FlatFace"
sketch2.addGeometry(Part.LineSegment(Vector(114.7, -89.1, 0), Vector(114.7, -139.1, 0)), False)
sketch2.addGeometry(Part.LineSegment(Vector(114.7, -139.1, 0), Vector(111.7, -139.1, 0)), False)
sketch2.addGeometry(Part.LineSegment(Vector(111.7, -139.1, 0), Vector(111.7, -89.1, 0)), False)
sketch2.addGeometry(Part.LineSegment(Vector(111.7, -89.1, 0), Vector(114.7, -89.1, 0)), False)
sketch2.addConstraint(Sketcher.Constraint("Coincident", 0, 2, 1, 1))
sketch2.addConstraint(Sketcher.Constraint("Coincident", 1, 2, 2, 1))
sketch2.addConstraint(Sketcher.Constraint("Coincident", 2, 2, 3, 1))
sketch2.addConstraint(Sketcher.Constraint("Coincident", 3, 2, 0, 1))
sketch2.addConstraint(Sketcher.Constraint("Vertical", 0))
sketch2.addConstraint(Sketcher.Constraint("Horizontal", 1))
sketch2.addConstraint(Sketcher.Constraint("Vertical", 2))
sketch2.addConstraint(Sketcher.Constraint("Horizontal", 3))
sketch2.addConstraint(Sketcher.Constraint("DistanceX", 1, 2, 1, 1, Q("3 mm")))
sketch2.addConstraint(Sketcher.Constraint("DistanceY", 0, 2, 0, 1, Q("50 mm")))
sketch2.addConstraint(Sketcher.Constraint("DistanceX", -1, 1, 0, 2, Q("114.6708 mm")))
sketch2.addConstraint(Sketcher.Constraint("DistanceY", 0, 2, -1, 1, Q("139.134724 mm")))
pad2 = body.newObject("PartDesign::Pad", "Pad001")
pad2.Profile = sketch2
pad2.Length = 29

sketch3 = body.newObject("Sketcher::SketchObject", "Sketch002")
sketch3.AttachmentSupport = (doc.getObject("YZ_Plane"), [""])
sketch3.MapMode = "FlatFace"
sketch3.AttachmentOffset = App.Placement(Vector(0, 0, 114.6708), App.Rotation())
sketch3.addGeometry(Part.Circle(Vector(-123.7, 24.5, 0), Vector(0, 0, 1), 1.8), False)
sketch3.addGeometry(Part.Circle(Vector(-123.7, 7, 0), Vector(0, 0, 1), 1.8), False)
sketch3.addGeometry(Part.Circle(Vector(-121, 9.9, 0), Vector(0, 0, 1), 1), False)
sketch3.addGeometry(Part.Circle(Vector(-93.7, 9.9, 0), Vector(0, 0, 1), 1), False)
sketch3.addGeometry(Part.LineSegment(Vector(-118.6, 4, 0), Vector(-96.1, 4, 0)), False)
sketch3.addGeometry(Part.LineSegment(Vector(-96.1, 4, 0), Vector(-96.1, 15.8, 0)), False)
sketch3.addGeometry(Part.LineSegment(Vector(-96.1, 15.8, 0), Vector(-99.1, 15.8, 0)), False)
sketch3.addGeometry(Part.LineSegment(Vector(-99.1, 15.8, 0), Vector(-99.1, 20.6, 0)), False)
sketch3.addGeometry(Part.ArcOfCircle(Part.Circle(Vector(-103.1, 19.9, 0), Vector(0, 0, 1), 4), math.radians(9), math.radians(172)), False)
sketch3.addGeometry(Part.LineSegment(Vector(-107, 20.5, 0), Vector(-107, 15.8, 0)), False)
sketch3.addGeometry(Part.LineSegment(Vector(-107, 15.8, 0), Vector(-118.6, 15.8, 0)), False)
sketch3.addGeometry(Part.LineSegment(Vector(-118.6, 15.8, 0), Vector(-118.6, 4, 0)), False)
sketch3.addConstraint(Sketcher.Constraint("Coincident", 4, 2, 5, 1))
sketch3.addConstraint(Sketcher.Constraint("Coincident", 5, 2, 6, 1))
sketch3.addConstraint(Sketcher.Constraint("Coincident", 6, 2, 7, 1))
sketch3.addConstraint(Sketcher.Constraint("Coincident", 7, 2, 8, 1))
sketch3.addConstraint(Sketcher.Constraint("Coincident", 8, 2, 9, 1))
sketch3.addConstraint(Sketcher.Constraint("Coincident", 9, 2, 10, 1))
sketch3.addConstraint(Sketcher.Constraint("Coincident", 10, 2, 11, 1))
sketch3.addConstraint(Sketcher.Constraint("Coincident", 11, 2, 4, 1))
sketch3.addConstraint(Sketcher.Constraint("Horizontal", 4))
sketch3.addConstraint(Sketcher.Constraint("Vertical", 5))
sketch3.addConstraint(Sketcher.Constraint("Horizontal", 6))
sketch3.addConstraint(Sketcher.Constraint("Vertical", 7))
sketch3.addConstraint(Sketcher.Constraint("Vertical", 9))
sketch3.addConstraint(Sketcher.Constraint("Horizontal", 10))
sketch3.addConstraint(Sketcher.Constraint("Vertical", 11))
sketch3.addConstraint(Sketcher.Constraint("Equal", 0, 1))
sketch3.addConstraint(Sketcher.Constraint("Equal", 2, 3))
sketch3.addConstraint(Sketcher.Constraint("Horizontal", 2, 3, 3, 3))
sketch3.addConstraint(Sketcher.Constraint("Horizontal", 6, 2, 9, 2))
sketch3.addConstraint(Sketcher.Constraint("Vertical", 0, 3, 1, 3))
sketch3.addConstraint(Sketcher.Constraint("Diameter", 2, Q("2 mm")))
sketch3.addConstraint(Sketcher.Constraint("Radius", 8, Q("4 mm")))
sketch3.addConstraint(Sketcher.Constraint("DistanceX", 6, 2, 6, 1, Q("3 mm")))
sketch3.addConstraint(Sketcher.Constraint("DistanceX", 4, 1, 4, 2, Q("22.5 mm")))
sketch3.addConstraint(Sketcher.Constraint("DistanceY", 5, 1, 5, 2, Q("11.8 mm")))
sketch3.addConstraint(Sketcher.Constraint("DistanceY", -1, 1, 1, 3, Q("7 mm")))
sketch3.addConstraint(Sketcher.Constraint("DistanceY", -1, 1, 4, 2, Q("4 mm")))
sketch3.addConstraint(Sketcher.Constraint("DistanceX", 1, 3, 3, 3, Q("30 mm")))
sketch3.addConstraint(Sketcher.Constraint("DistanceY", -1, 1, 0, 3, Q("24.5 mm")))
sketch3.addConstraint(Sketcher.Constraint("DistanceY", -1, 1, 2, 3, Q("9.9 mm")))
sketch3.addConstraint(Sketcher.Constraint("DistanceX", 4, 2, 3, 3, Q("2.4 mm")))
sketch3.addConstraint(Sketcher.Constraint("DistanceY", 8, 3, 8, 2, Q("0.55 mm")))
sketch3.addConstraint(Sketcher.Constraint("Diameter", 0, Q("3.530964 mm")))
sketch3.addConstraint(Sketcher.Constraint("DistanceY", 9, 2, 9, 1, Q("4.68862 mm")))
sketch3.addConstraint(Sketcher.Constraint("DistanceX", 10, 2, 10, 1, Q("11.589345 mm")))
sketch3.addConstraint(Sketcher.Constraint("DistanceX", 2, 3, -1, 1, Q("121.034548 mm")))
sketch3.addConstraint(Sketcher.Constraint("DistanceX", 8, 3, -1, 1, Q("103.083372 mm")))
pocket1 = body.newObject("PartDesign::Pocket", "Pocket")
pocket1.Profile = sketch3
pocket1.Length = 3
doc.recompute()

fillet = body.newObject("PartDesign::Fillet", "Fillet")
fillet.Base = (pocket1, edges_at(pocket1, [(113.171, -89.135, 29), (113.171, -139.135, 29)]))
fillet.Radius = 2
doc.recompute()

datumplane = body.newObject("PartDesign::Plane", "DatumPlane")
datumplane.AttachmentSupport = (doc.getObject("YZ_Plane"), [""])
datumplane.MapMode = "FlatFace"
datumplane.AttachmentOffset = App.Placement(Vector(0, 0, 60.6708), App.Rotation())
mirrored = body.newObject("PartDesign::Mirrored", "Mirrored")
mirrored.Originals = [pad2, pocket1]
mirrored.MirrorPlane = (datumplane, [""])
body.Tip = mirrored
doc.recompute()

fillet2 = body.newObject("PartDesign::Fillet", "Fillet001")
fillet2.Base = (mirrored, edges_at(mirrored, [(8.171, -89.135, 29), (8.171, -139.135, 29)]))
fillet2.Radius = 2

sketch4 = body.newObject("Sketcher::SketchObject", "Sketch003")
sketch4.AttachmentSupport = (doc.getObject("XY_Plane"), [""])
sketch4.MapMode = "FlatFace"
sketch4.addGeometry(Part.LineSegment(Vector(109.7, -198.6, 0), Vector(109.7, -201.6, 0)), False)
sketch4.addGeometry(Part.LineSegment(Vector(109.7, -201.6, 0), Vector(13.7, -201.6, 0)), False)
sketch4.addGeometry(Part.LineSegment(Vector(13.7, -201.6, 0), Vector(13.7, -198.6, 0)), False)
sketch4.addGeometry(Part.LineSegment(Vector(13.7, -198.6, 0), Vector(109.7, -198.6, 0)), False)
sketch4.addConstraint(Sketcher.Constraint("Coincident", 0, 2, 1, 1))
sketch4.addConstraint(Sketcher.Constraint("Coincident", 1, 2, 2, 1))
sketch4.addConstraint(Sketcher.Constraint("Coincident", 2, 2, 3, 1))
sketch4.addConstraint(Sketcher.Constraint("Coincident", 3, 2, 0, 1))
sketch4.addConstraint(Sketcher.Constraint("Vertical", 0))
sketch4.addConstraint(Sketcher.Constraint("Horizontal", 1))
sketch4.addConstraint(Sketcher.Constraint("Vertical", 2))
sketch4.addConstraint(Sketcher.Constraint("Horizontal", 3))
sketch4.addConstraint(Sketcher.Constraint("DistanceX", 1, 2, 1, 1, Q("96 mm")))
sketch4.addConstraint(Sketcher.Constraint("DistanceY", 0, 2, 0, 1, Q("3 mm")))
sketch4.addConstraint(Sketcher.Constraint("DistanceX", -1, 1, 0, 2, Q("109.6708 mm")))
sketch4.addConstraint(Sketcher.Constraint("DistanceY", 0, 2, -1, 1, Q("201.585991 mm")))
pad3 = body.newObject("PartDesign::Pad", "Pad002")
pad3.Profile = sketch4
pad3.Length = 13
doc.recompute()

fillet3 = body.newObject("PartDesign::Fillet", "Fillet002")
fillet3.Base = (pad3, edges_at(pad3, [
    (61.671, -201.586, 13),
    (13.671, -201.586, 6.5),
    (109.671, -201.586, 6.5),
    (61.671, -201.586, 0),
]))
fillet3.Radius = 2

doc.recompute()
